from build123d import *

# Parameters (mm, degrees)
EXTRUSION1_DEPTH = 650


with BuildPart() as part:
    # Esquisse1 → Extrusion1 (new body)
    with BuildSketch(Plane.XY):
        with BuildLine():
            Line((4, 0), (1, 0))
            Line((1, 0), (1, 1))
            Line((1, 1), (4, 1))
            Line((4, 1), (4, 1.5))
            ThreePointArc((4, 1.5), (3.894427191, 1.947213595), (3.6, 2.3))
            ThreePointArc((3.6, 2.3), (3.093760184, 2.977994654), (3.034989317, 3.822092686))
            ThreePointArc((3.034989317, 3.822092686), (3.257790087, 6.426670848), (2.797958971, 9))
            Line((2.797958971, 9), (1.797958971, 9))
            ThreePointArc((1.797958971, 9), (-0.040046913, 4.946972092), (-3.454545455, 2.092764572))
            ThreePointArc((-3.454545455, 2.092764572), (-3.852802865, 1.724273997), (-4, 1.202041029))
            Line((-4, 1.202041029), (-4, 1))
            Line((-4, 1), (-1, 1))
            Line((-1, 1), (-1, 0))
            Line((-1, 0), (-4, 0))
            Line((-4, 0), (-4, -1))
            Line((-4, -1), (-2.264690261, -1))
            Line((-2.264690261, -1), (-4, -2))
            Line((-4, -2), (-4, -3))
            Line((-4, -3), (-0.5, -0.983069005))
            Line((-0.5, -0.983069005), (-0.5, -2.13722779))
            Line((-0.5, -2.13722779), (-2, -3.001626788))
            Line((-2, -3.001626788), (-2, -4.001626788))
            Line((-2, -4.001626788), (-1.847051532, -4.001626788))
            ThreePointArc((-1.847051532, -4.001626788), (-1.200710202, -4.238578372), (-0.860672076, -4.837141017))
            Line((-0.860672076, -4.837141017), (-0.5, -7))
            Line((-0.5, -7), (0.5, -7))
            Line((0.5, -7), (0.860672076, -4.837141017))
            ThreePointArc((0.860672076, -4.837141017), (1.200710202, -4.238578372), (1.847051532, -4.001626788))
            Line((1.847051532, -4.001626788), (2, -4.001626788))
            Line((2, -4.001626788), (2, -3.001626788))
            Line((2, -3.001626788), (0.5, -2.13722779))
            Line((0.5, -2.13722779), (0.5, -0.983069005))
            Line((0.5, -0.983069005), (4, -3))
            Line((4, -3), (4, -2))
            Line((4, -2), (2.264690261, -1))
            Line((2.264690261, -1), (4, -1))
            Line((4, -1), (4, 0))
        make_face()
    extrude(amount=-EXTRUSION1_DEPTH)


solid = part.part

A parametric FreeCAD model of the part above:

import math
import FreeCAD as App
import Part
import Sketcher
Q = App.Units.Quantity

doc = App.newDocument("Part")
body = doc.addObject("PartDesign::Body", "Body")

# Sketch on XY plane
sketch1 = body.newObject("Sketcher::SketchObject", "Sketch")
sketch1.AttachmentSupport = (doc.getObject("XY_Plane"), [""])
sketch1.MapMode = "FlatFace"
sketch1.addGeometry(Part.LineSegment(App.Vector(4, 0, 0), App.Vector(1, 0, 0)), False)
sketch1.addGeometry(Part.LineSegment(App.Vector(1, 0, 0), App.Vector(1, 1, 0)), False)
sketch1.addGeometry(Part.LineSegment(App.Vector(1, 1, 0), App.Vector(4, 1, 0)), False)
sketch1.addGeometry(Part.LineSegment(App.Vector(4, 1, 0), App.Vector(4, 1.5, 0)), False)
sketch1.addGeometry(Part.ArcOfCircle(Part.Circle(App.Vector(3, 1.5, 0), App.Vector(0, 0, 1), 1), math.radians(0), math.radians(53.130102)), False)
sketch1.addGeometry(Part.ArcOfCircle(Part.Circle(App.Vector(4.5, 3.5, 0), App.Vector(0, 0, 1), 1.5), math.radians(167.600403), math.radians(233.130102)), False)
sketch1.addGeometry(Part.ArcOfCircle(Part.Circle(App.Vector(-6.731749, 5.969377, 0), App.Vector(0, 0, 1), 10), math.radians(-12.399597), math.radians(17.641624)), False)
sketch1.addGeometry(Part.LineSegment(App.Vector(2.797959, 9, 0), App.Vector(1.797959, 9, 0)), False)
sketch1.addGeometry(Part.ArcOfCircle(Part.Circle(App.Vector(-8, 11, 0), App.Vector(0, 0, 1), 10), math.radians(-62.964308), math.radians(-11.536959)), False)
sketch1.addGeometry(Part.ArcOfCircle(Part.Circle(App.Vector(-3, 1.202041, 0), App.Vector(0, 0, 1), 1), math.radians(117.035692), math.radians(180)), False)
sketch1.addGeometry(Part.LineSegment(App.Vector(-4, 1.202041, 0), App.Vector(-4, 1, 0)), False)
sketch1.addGeometry(Part.LineSegment(App.Vector(-4, 1, 0), App.Vector(-1, 1, 0)), False)
sketch1.addGeometry(Part.LineSegment(App.Vector(-1, 1, 0), App.Vector(-1, 0, 0)), False)
sketch1.addGeometry(Part.LineSegment(App.Vector(-1, 0, 0), App.Vector(-4, 0, 0)), False)
sketch1.addGeometry(Part.LineSegment(App.Vector(-4, 0, 0), App.Vector(-4, -1, 0)), False)
sketch1.addGeometry(Part.LineSegment(App.Vector(-4, -1, 0), App.Vector(-2.26469, -1, 0)), False)
sketch1.addGeometry(Part.LineSegment(App.Vector(-2.26469, -1, 0), App.Vector(-4, -2, 0)), False)
sketch1.addGeometry(Part.LineSegment(App.Vector(-4, -2, 0), App.Vector(-4, -3, 0)), False)
sketch1.addGeometry(Part.LineSegment(App.Vector(-4, -3, 0), App.Vector(-0.5, -0.983069, 0)), False)
sketch1.addGeometry(Part.LineSegment(App.Vector(-0.5, -0.983069, 0), App.Vector(-0.5, -2.137228, 0)), False)
sketch1.addGeometry(Part.LineSegment(App.Vector(-0.5, -2.137228, 0), App.Vector(-2, -3.001627, 0)), False)
sketch1.addGeometry(Part.LineSegment(App.Vector(-2, -3.001627, 0), App.Vector(-2, -4.001627, 0)), False)
sketch1.addGeometry(Part.LineSegment(App.Vector(-2, -4.001627, 0), App.Vector(-1.847052, -4.001627, 0)), False)
sketch1.addGeometry(Part.ArcOfCircle(Part.Circle(App.Vector(-1.847052, -5.001627, 0), App.Vector(0, 0, 1), 1), math.radians(9.467363), math.radians(90)), False)
sketch1.addGeometry(Part.LineSegment(App.Vector(-0.860672, -4.837141, 0), App.Vector(-0.5, -7, 0)), False)
sketch1.addGeometry(Part.LineSegment(App.Vector(-0.5, -7, 0), App.Vector(0.5, -7, 0)), False)
sketch1.addGeometry(Part.LineSegment(App.Vector(0.5, -7, 0), App.Vector(0.860672, -4.837141, 0)), False)
sketch1.addGeometry(Part.ArcOfCircle(Part.Circle(App.Vector(1.847052, -5.001627, 0), App.Vector(0, 0, 1), 1), math.radians(90), math.radians(170.532637)), False)
sketch1.addGeometry(Part.LineSegment(App.Vector(1.847052, -4.001627, 0), App.Vector(2, -4.001627, 0)), False)
sketch1.addGeometry(Part.LineSegment(App.Vector(2, -4.001627, 0), App.Vector(2, -3.001627, 0)), False)
sketch1.addGeometry(Part.LineSegment(App.Vector(2, -3.001627, 0), App.Vector(0.5, -2.137228, 0)), False)
sketch1.addGeometry(Part.LineSegment(App.Vector(0.5, -2.137228, 0), App.Vector(0.5, -0.983069, 0)), False)
sketch1.addGeometry(Part.LineSegment(App.Vector(0.5, -0.983069, 0), App.Vector(4, -3, 0)), False)
sketch1.addGeometry(Part.LineSegment(App.Vector(4, -3, 0), App.Vector(4, -2, 0)), False)
sketch1.addGeometry(Part.LineSegment(App.Vector(4, -2, 0), App.Vector(2.26469, -1, 0)), False)
sketch1.addGeometry(Part.LineSegment(App.Vector(2.26469, -1, 0), App.Vector(4, -1, 0)), False)
sketch1.addGeometry(Part.LineSegment(App.Vector(4, -1, 0), App.Vector(4, 0, 0)), False)
sketch1.addConstraint(Sketcher.Constraint("Coincident", 0, 2, 1, 1))
sketch1.addConstraint(Sketcher.Constraint("Coincident", 1, 2, 2, 1))
sketch1.addConstraint(Sketcher.Constraint("Coincident", 2, 2, 3, 1))
sketch1.addConstraint(Sketcher.Constraint("Tangent", 3, 2, 4, 1))
sketch1.addConstraint(Sketcher.Constraint("Tangent", 4, 2, 5, 2))
sketch1.addConstraint(Sketcher.Constraint("Tangent", 5, 1, 6, 1))
sketch1.addConstraint(Sketcher.Constraint("Coincident", 6, 2, 7, 1))
sketch1.addConstraint(Sketcher.Constraint("Coincident", 7, 2, 8, 2))
sketch1.addConstraint(Sketcher.Constraint("Tangent", 8, 1, 9, 1))
sketch1.addConstraint(Sketcher.Constraint("Tangent", 9, 2, 10, 1))
sketch1.addConstraint(Sketcher.Constraint("Coincident", 10, 2, 11, 1))
sketch1.addConstraint(Sketcher.Constraint("Coincident", 11, 2, 12, 1))
sketch1.addConstraint(Sketcher.Constraint("Coincident", 12, 2, 13, 1))
sketch1.addConstraint(Sketcher.Constraint("Coincident", 13, 2, 14, 1))
sketch1.addConstraint(Sketcher.Constraint("Coincident", 14, 2, 15, 1))
sketch1.addConstraint(Sketcher.Constraint("Coincident", 15, 2, 16, 1))
sketch1.addConstraint(Sketcher.Constraint("Coincident", 16, 2, 17, 1))
sketch1.addConstraint(Sketcher.Constraint("Coincident", 17, 2, 18, 1))
sketch1.addConstraint(Sketcher.Constraint("Coincident", 18, 2, 19, 1))
sketch1.addConstraint(Sketcher.Constraint("Coincident", 19, 2, 20, 1))
sketch1.addConstraint(Sketcher.Constraint("Coincident", 20, 2, 21, 1))
sketch1.addConstraint(Sketcher.Constraint("Coincident", 21, 2, 22, 1))
sketch1.addConstraint(Sketcher.Constraint("Tangent", 22, 2, 23, 2))
sketch1.addConstraint(Sketcher.Constraint("Tangent", 23, 1, 24, 1))
sketch1.addConstraint(Sketcher.Constraint("Coincident", 24, 2, 25, 1))
sketch1.addConstraint(Sketcher.Constraint("Coincident", 25, 2, 26, 1))
sketch1.addConstraint(Sketcher.Constraint("Tangent", 26, 2, 27, 2))
sketch1.addConstraint(Sketcher.Constraint("Tangent", 27, 1, 28, 1))
sketch1.addConstraint(Sketcher.Constraint("Coincident", 28, 2, 29, 1))
sketch1.addConstraint(Sketcher.Constraint("Coincident", 29, 2, 30, 1))
sketch1.addConstraint(Sketcher.Constraint("Coincident", 30, 2, 31, 1))
sketch1.addConstraint(Sketcher.Constraint("Coincident", 31, 2, 32, 1))
sketch1.addConstraint(Sketcher.Constraint("Coincident", 32, 2, 33, 1))
sketch1.addConstraint(Sketcher.Constraint("Coincident", 33, 2, 34, 1))
sketch1.addConstraint(Sketcher.Constraint("Coincident", 34, 2, 35, 1))
sketch1.addConstraint(Sketcher.Constraint("Coincident", 35, 2, 36, 1))
sketch1.addConstraint(Sketcher.Constraint("Coincident", 36, 2, 0, 1))
sketch1.addConstraint(Sketcher.Constraint("Horizontal", 0))
sketch1.addConstraint(Sketcher.Constraint("Vertical", 1))
sketch1.addConstraint(Sketcher.Constraint("Horizontal", 2))
sketch1.addConstraint(Sketcher.Constraint("Vertical", 3))
sketch1.addConstraint(Sketcher.Constraint("Horizontal", 7))
sketch1.addConstraint(Sketcher.Constraint("Vertical", 10))
sketch1.addConstraint(Sketcher.Constraint("Horizontal", 11))
sketch1.addConstraint(Sketcher.Constraint("Vertical", 12))
sketch1.addConstraint(Sketcher.Constraint("Horizontal", 13))
sketch1.addConstraint(Sketcher.Constraint("Vertical", 14))
sketch1.addConstraint(Sketcher.Constraint("Horizontal", 15))
sketch1.addConstraint(Sketcher.Constraint("Vertical", 17))
sketch1.addConstraint(Sketcher.Constraint("Vertical", 19))
sketch1.addConstraint(Sketcher.Constraint("Vertical", 21))
sketch1.addConstraint(Sketcher.Constraint("Horizontal", 22))
sketch1.addConstraint(Sketcher.Constraint("Horizontal", 25))
sketch1.addConstraint(Sketcher.Constraint("Horizontal", 28))
sketch1.addConstraint(Sketcher.Constraint("Vertical", 29))
sketch1.addConstraint(Sketcher.Constraint("Vertical", 31))
sketch1.addConstraint(Sketcher.Constraint("Vertical", 33))
sketch1.addConstraint(Sketcher.Constraint("Horizontal", 35))
sketch1.addConstraint(Sketcher.Constraint("Vertical", 36))
sketch1.addConstraint(Sketcher.Constraint("Equal", 6, 8))
sketch1.addConstraint(Sketcher.Constraint("Equal", 4, 9))
sketch1.addConstraint(Sketcher.Constraint("Equal", 9, 23))
sketch1.addConstraint(Sketcher.Constraint("Equal", 23, 27))
sketch1.addConstraint(Sketcher.Constraint("Symmetric", 0, 2, 12, 2, -1, 1))
sketch1.addConstraint(Sketcher.Constraint("Symmetric", 2, 2, 14, 2, -1, 1))
sketch1.addConstraint(Sketcher.Constraint("Symmetric", 10, 2, 35, 2, -1, 1))
sketch1.addConstraint(Sketcher.Constraint("Symmetric", 23, 3, 27, 3, -2))
sketch1.addConstraint(Sketcher.Constraint("Symmetric", 2, 2, 10, 2, -2))
sketch1.addConstraint(Sketcher.Constraint("Symmetric", 20, 2, 29, 2, -2))
sketch1.addConstraint(Sketcher.Constraint("Symmetric", 19, 2, 30, 2, -2))
sketch1.addConstraint(Sketcher.Constraint("Symmetric", 17, 2, 32, 2, -2))
sketch1.addConstraint(Sketcher.Constraint("PointOnObject", 0, 2, -1))
sketch1.addConstraint(Sketcher.Constraint("Parallel", 16, 18))
sketch1.addConstraint(Sketcher.Constraint("Parallel", 18, 20))
sketch1.addConstraint(Sketcher.Constraint("Parallel", 30, 32))
sketch1.addConstraint(Sketcher.Constraint("Parallel", 32, 34))
sketch1.addConstraint(Sketcher.Constraint("Horizontal", 23, 1, 26, 2))
sketch1.addConstraint(Sketcher.Constraint("Horizontal", 16, 2, 33, 2))
sketch1.addConstraint(Sketcher.Constraint("Vertical", 14, 2, 16, 2))
sketch1.addConstraint(Sketcher.Constraint("Vertical", 19, 2, 24, 2))
sketch1.addConstraint(Sketcher.Constraint("Equal", 7, 25))
sketch1.addConstraint(Sketcher.Constraint("Equal", 25, 1))
sketch1.addConstraint(Sketcher.Constraint("Equal", 14, 17))
sketch1.addConstraint(Sketcher.Constraint("Equal", 17, 21))
sketch1.addConstraint(Sketcher.Constraint("Radius", 4, Q("1 mm")))
sketch1.addConstraint(Sketcher.Constraint("Radius", 6, Q("10 mm")))
sketch1.addConstraint(Sketcher.Constraint("Radius", 5, Q("1.5 mm")))
sketch1.addConstraint(Sketcher.Constraint("DistanceX", 0, 2, 0, 1, Q("3 mm")))
sketch1.addConstraint(Sketcher.Constraint("DistanceX", 7, 2, 7, 1, Q("1 mm")))
sketch1.addConstraint(Sketcher.Constraint("DistanceY", 3, 1, 3, 2, Q("0.5 mm")))
sketch1.addConstraint(Sketcher.Constraint("DistanceX", -1, 1, 4, 3, Q("3 mm")))
sketch1.addConstraint(Sketcher.Constraint("DistanceX", 8, 3, -1, 1, Q("8 mm")))
sketch1.addConstraint(Sketcher.Constraint("DistanceY", -1, 1, 8, 3, Q("11 mm")))
sketch1.addConstraint(Sketcher.Constraint("DistanceY", -1, 1, 6, 2, Q("9 mm")))
sketch1.addConstraint(Sketcher.Constraint("DistanceY", 16, 2, -1, 1, Q("2 mm")))
sketch1.addConstraint(Sketcher.Constraint("DistanceX", 20, 2, -1, 1, Q("2 mm")))
sketch1.addConstraint(Sketcher.Constraint("DistanceY", 24, 2, -1, 1, Q("7 mm")))
sketch1.addConstraint(Sketcher.Constraint("DistanceY", 4, 3, 5, 3, Q("2 mm")))
sketch1.addConstraint(Sketcher.Constraint("DistanceX", 15, 1, 15, 2, Q("1.73531 mm")))
sketch1.addConstraint(Sketcher.Constraint("DistanceX", 22, 1, 22, 2, Q("0.152948 mm")))
sketch1.addConstraint(Sketcher.Constraint("DistanceY", 19, 2, 19, 1, Q("1.154159 mm")))
pad1 = body.newObject("PartDesign::Pad", "Pad")
pad1.Profile = sketch1
pad1.Length = 650
pad1.Reversed = True

doc.recompute()
